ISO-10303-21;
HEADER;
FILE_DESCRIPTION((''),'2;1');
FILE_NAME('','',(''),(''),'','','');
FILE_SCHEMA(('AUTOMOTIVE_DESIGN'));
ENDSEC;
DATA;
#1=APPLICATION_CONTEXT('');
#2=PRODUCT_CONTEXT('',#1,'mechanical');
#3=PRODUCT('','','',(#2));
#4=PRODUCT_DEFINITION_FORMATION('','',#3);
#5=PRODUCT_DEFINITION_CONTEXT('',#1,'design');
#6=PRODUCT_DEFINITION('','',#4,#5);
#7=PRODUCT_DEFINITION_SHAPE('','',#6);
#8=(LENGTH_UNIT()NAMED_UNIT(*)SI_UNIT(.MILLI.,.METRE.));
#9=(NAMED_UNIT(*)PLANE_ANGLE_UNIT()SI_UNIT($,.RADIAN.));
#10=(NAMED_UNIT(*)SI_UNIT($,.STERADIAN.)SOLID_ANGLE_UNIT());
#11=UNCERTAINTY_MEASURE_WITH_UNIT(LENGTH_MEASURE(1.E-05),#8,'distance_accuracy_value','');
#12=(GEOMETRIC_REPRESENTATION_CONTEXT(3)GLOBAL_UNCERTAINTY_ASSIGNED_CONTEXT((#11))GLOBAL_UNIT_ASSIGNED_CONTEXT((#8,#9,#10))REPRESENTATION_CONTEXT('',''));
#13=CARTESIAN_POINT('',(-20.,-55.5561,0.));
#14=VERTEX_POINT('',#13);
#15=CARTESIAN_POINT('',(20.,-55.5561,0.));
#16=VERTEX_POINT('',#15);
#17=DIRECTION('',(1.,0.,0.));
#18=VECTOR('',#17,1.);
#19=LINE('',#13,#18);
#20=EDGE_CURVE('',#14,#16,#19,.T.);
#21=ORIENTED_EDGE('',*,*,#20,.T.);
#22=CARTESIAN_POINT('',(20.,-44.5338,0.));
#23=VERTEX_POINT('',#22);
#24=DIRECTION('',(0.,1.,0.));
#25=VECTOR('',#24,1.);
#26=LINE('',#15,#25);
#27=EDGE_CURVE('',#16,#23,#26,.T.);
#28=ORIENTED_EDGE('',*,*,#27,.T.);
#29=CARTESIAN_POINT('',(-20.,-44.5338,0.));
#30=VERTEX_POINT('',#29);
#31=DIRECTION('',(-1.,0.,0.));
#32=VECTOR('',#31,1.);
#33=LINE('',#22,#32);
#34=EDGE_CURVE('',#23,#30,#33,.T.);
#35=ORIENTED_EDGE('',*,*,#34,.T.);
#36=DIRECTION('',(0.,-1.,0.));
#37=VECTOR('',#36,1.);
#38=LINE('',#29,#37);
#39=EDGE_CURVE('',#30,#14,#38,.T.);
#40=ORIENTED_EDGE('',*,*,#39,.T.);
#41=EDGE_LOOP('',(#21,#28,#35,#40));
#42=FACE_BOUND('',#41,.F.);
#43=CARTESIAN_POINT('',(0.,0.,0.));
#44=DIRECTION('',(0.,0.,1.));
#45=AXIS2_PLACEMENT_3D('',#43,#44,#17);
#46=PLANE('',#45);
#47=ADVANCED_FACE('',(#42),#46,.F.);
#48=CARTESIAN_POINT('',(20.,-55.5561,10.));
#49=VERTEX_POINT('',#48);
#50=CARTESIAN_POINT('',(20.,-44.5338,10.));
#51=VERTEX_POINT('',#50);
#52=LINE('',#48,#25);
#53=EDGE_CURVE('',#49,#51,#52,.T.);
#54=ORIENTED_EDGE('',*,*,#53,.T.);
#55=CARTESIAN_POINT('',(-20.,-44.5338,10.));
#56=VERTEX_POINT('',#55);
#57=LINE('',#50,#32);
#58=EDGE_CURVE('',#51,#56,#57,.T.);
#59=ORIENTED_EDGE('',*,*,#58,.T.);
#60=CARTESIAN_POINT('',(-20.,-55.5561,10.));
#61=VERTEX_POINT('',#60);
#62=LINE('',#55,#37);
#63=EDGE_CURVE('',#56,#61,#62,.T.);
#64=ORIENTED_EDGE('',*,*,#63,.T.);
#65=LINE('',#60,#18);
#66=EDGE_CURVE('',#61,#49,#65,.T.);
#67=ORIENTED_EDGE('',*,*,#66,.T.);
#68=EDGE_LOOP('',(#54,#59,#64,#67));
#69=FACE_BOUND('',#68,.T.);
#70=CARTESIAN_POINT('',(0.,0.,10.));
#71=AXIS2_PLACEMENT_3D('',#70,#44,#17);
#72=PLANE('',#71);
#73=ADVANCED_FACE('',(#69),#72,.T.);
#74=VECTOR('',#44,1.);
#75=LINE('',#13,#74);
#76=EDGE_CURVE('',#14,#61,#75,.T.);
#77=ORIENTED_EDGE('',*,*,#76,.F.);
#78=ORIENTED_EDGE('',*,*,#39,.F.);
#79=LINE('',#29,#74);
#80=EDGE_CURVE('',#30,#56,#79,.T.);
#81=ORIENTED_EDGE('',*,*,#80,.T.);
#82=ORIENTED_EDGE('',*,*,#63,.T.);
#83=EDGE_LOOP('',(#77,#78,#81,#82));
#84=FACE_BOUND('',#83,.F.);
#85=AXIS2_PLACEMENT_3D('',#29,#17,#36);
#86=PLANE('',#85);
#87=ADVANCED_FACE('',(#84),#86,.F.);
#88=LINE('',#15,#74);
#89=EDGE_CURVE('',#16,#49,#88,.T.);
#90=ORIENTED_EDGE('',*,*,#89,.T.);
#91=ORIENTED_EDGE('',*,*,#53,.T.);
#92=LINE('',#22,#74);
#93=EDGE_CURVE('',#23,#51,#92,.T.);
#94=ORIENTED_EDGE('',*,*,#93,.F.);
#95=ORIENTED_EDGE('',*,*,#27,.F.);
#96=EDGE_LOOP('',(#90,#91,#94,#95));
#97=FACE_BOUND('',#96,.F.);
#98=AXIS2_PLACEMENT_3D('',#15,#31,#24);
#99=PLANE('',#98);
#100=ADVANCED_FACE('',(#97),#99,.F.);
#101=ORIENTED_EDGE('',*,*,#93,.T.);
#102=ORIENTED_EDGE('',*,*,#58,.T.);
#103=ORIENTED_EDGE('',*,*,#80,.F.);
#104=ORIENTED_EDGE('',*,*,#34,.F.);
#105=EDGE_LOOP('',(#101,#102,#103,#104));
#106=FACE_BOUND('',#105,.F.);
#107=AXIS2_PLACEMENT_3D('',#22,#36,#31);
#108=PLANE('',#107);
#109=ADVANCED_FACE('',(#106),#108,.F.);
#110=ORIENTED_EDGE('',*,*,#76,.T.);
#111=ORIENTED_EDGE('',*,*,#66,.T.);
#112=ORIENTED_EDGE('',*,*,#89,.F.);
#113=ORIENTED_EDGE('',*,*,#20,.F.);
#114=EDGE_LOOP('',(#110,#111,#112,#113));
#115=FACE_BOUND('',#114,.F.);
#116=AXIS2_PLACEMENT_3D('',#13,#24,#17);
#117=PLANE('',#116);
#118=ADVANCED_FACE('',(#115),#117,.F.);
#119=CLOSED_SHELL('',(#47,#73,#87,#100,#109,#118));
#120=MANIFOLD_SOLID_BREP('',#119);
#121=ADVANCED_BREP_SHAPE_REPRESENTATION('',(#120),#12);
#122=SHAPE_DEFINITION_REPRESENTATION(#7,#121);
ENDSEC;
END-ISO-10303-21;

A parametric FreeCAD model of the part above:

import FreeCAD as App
import Part
import Sketcher


def add_polygon(sketch, points):
    """Adds a closed chain of lines whose ends are joined by coincident constraints."""
    first, n = sketch.GeometryCount, len(points)
    for a, b in zip(points, points[1:] + points[:1]):
        sketch.addGeometry(Part.LineSegment(App.Vector(*a, 0), App.Vector(*b, 0)), False)
    for i in range(n):
        sketch.addConstraint(Sketcher.Constraint("Coincident", first + i, 2, first + (i + 1) % n, 1))

doc = App.newDocument("Part")
body = doc.addObject("PartDesign::Body", "Body")

# Sketch on XY plane
sketch1 = body.newObject("Sketcher::SketchObject", "Sketch")
sketch1.AttachmentSupport = (doc.getObject("XY_Plane"), [""])
sketch1.MapMode = "FlatFace"
add_polygon(sketch1, [(-20, -45), (-20, -56), (20, -56), (20, -45)])  # lines 0-3
sketch1.addConstraint(Sketcher.Constraint("Vertical", 0))
sketch1.addConstraint(Sketcher.Constraint("Horizontal", 1))
sketch1.addConstraint(Sketcher.Constraint("Vertical", 2))
sketch1.addConstraint(Sketcher.Constraint("Horizontal", 3))
sketch1.addConstraint(Sketcher.Constraint("DistanceX", 1, 1, 1, 2, 40.0))
sketch1.addConstraint(Sketcher.Constraint("DistanceX", 0, 2, -1, 1, 20.0))
sketch1.addConstraint(Sketcher.Constraint("DistanceY", 0, 2, 0, 1, 11.0223))
sketch1.addConstraint(Sketcher.Constraint("DistanceY", 0, 2, -1, 1, 55.556))
pad1 = body.newObject("PartDesign::Pad", "Pad")
pad1.Profile = sketch1
pad1.Length = 10

doc.recompute()
